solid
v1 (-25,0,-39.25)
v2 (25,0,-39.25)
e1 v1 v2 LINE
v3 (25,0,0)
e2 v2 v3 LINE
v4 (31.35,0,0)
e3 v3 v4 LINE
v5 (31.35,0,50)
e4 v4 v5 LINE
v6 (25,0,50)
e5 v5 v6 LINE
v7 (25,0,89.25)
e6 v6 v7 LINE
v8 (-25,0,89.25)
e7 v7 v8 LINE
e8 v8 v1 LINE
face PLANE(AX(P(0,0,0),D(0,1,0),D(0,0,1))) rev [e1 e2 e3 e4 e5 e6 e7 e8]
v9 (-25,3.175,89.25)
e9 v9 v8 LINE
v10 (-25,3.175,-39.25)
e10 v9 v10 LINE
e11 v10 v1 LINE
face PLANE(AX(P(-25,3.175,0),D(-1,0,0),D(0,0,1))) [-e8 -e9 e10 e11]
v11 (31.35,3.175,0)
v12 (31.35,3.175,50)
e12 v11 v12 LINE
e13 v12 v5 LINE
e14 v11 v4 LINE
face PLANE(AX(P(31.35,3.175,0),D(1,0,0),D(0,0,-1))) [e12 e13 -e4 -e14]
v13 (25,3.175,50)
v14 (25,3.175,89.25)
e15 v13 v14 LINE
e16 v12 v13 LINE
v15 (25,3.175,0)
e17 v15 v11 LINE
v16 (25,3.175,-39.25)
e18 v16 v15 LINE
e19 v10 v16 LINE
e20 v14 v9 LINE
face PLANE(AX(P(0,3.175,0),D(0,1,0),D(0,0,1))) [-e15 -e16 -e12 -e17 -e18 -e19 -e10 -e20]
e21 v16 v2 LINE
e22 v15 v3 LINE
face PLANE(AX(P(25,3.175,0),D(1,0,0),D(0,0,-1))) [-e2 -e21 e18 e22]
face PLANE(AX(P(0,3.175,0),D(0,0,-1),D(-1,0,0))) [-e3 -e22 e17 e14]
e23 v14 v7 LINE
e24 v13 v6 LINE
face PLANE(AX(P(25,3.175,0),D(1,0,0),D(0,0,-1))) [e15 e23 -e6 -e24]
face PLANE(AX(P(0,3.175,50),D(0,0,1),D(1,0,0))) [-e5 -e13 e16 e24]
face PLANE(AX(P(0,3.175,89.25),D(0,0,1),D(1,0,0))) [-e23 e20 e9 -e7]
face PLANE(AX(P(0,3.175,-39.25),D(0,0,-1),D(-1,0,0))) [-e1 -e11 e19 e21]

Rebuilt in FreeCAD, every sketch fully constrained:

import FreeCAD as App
import Part
import Sketcher

V = App.Vector
Q = App.Units.Quantity

doc = App.newDocument("Part")
params = doc.addObject("Spreadsheet::Sheet", "Params")
for row, (alias, value) in enumerate([
    ("sketch1_width", "50 mm"),
    ("sketch1_height", "128.5 mm"),
    ("sketch1_width2", "6.35 mm"),
    ("pad1_length", "3.175 mm"),
], start=1):
    params.set(f"A{row}", alias)
    params.set(f"B{row}", "=" + value)
    params.setAlias(f"B{row}", alias)

body = doc.addObject("PartDesign::Body", "Body")

# Sketch on XZ plane
sketch1 = body.newObject("Sketcher::SketchObject", "Sketch")
sketch1.AttachmentSupport = (doc.getObject("XZ_Plane"), [""])
sketch1.MapMode = "FlatFace"
sketch1.addGeometry([
    Part.LineSegment(V(-25, -39.25, 0), V(-25, 89.25, 0)),  # 0
    Part.LineSegment(V(-25, 89.25, 0), V(25, 89.25, 0)),  # 1
    Part.LineSegment(V(25, 89.25, 0), V(25, 50, 0)),  # 2
    Part.LineSegment(V(25, 50, 0), V(31.35, 50, 0)),  # 3
    Part.LineSegment(V(31.35, 50, 0), V(31.35, 0, 0)),  # 4
    Part.LineSegment(V(31.35, 0, 0), V(25, 0, 0)),  # 5
    Part.LineSegment(V(25, 0, 0), V(25, -39.25, 0)),  # 6
    Part.LineSegment(V(25, -39.25, 0), V(-25, -39.25, 0)),  # 7
], False)
sketch1.addConstraint([
    Sketcher.Constraint("Coincident", 0, 2, 1, 1),
    Sketcher.Constraint("Coincident", 1, 2, 2, 1),
    Sketcher.Constraint("Coincident", 2, 2, 3, 1),
    Sketcher.Constraint("Coincident", 3, 2, 4, 1),
    Sketcher.Constraint("Coincident", 4, 2, 5, 1),
    Sketcher.Constraint("Coincident", 5, 2, 6, 1),
    Sketcher.Constraint("Coincident", 6, 2, 7, 1),
    Sketcher.Constraint("Coincident", 7, 2, 0, 1),
    Sketcher.Constraint("Vertical", 0),
    Sketcher.Constraint("Horizontal", 1),
    Sketcher.Constraint("Vertical", 2),
    Sketcher.Constraint("Horizontal", 3),
    Sketcher.Constraint("Vertical", 4),
    Sketcher.Constraint("Horizontal", 5),
    Sketcher.Constraint("Vertical", 6),
    Sketcher.Constraint("Horizontal", 7),
    Sketcher.Constraint("PointOnObject", 4, 2, -1),
    Sketcher.Constraint("Vertical", 2, 2, 5, 2),
    Sketcher.Constraint("Equal", 7, 4),
    Sketcher.Constraint("Equal", 2, 6),
    Sketcher.Constraint("DistanceX", 1, 1, 1, 2, Q("50 mm")),
    Sketcher.Constraint("DistanceY", 0, 1, 0, 2, Q("128.5 mm")),
    Sketcher.Constraint("DistanceX", 0, 2, -1, 1, Q("25 mm")),
    Sketcher.Constraint("DistanceX", 3, 1, 3, 2, Q("6.35 mm")),
])
sketch1.setExpression("Constraints[20]", "Params.sketch1_width")
sketch1.setExpression("Constraints[21]", "Params.sketch1_height")
sketch1.setExpression("Constraints[23]", "Params.sketch1_width2")
pad1 = body.newObject("PartDesign::Pad", "Pad")
pad1.Profile = sketch1
pad1.setExpression("Length", "Params.pad1_length")
pad1.Reversed = True

doc.recompute()
